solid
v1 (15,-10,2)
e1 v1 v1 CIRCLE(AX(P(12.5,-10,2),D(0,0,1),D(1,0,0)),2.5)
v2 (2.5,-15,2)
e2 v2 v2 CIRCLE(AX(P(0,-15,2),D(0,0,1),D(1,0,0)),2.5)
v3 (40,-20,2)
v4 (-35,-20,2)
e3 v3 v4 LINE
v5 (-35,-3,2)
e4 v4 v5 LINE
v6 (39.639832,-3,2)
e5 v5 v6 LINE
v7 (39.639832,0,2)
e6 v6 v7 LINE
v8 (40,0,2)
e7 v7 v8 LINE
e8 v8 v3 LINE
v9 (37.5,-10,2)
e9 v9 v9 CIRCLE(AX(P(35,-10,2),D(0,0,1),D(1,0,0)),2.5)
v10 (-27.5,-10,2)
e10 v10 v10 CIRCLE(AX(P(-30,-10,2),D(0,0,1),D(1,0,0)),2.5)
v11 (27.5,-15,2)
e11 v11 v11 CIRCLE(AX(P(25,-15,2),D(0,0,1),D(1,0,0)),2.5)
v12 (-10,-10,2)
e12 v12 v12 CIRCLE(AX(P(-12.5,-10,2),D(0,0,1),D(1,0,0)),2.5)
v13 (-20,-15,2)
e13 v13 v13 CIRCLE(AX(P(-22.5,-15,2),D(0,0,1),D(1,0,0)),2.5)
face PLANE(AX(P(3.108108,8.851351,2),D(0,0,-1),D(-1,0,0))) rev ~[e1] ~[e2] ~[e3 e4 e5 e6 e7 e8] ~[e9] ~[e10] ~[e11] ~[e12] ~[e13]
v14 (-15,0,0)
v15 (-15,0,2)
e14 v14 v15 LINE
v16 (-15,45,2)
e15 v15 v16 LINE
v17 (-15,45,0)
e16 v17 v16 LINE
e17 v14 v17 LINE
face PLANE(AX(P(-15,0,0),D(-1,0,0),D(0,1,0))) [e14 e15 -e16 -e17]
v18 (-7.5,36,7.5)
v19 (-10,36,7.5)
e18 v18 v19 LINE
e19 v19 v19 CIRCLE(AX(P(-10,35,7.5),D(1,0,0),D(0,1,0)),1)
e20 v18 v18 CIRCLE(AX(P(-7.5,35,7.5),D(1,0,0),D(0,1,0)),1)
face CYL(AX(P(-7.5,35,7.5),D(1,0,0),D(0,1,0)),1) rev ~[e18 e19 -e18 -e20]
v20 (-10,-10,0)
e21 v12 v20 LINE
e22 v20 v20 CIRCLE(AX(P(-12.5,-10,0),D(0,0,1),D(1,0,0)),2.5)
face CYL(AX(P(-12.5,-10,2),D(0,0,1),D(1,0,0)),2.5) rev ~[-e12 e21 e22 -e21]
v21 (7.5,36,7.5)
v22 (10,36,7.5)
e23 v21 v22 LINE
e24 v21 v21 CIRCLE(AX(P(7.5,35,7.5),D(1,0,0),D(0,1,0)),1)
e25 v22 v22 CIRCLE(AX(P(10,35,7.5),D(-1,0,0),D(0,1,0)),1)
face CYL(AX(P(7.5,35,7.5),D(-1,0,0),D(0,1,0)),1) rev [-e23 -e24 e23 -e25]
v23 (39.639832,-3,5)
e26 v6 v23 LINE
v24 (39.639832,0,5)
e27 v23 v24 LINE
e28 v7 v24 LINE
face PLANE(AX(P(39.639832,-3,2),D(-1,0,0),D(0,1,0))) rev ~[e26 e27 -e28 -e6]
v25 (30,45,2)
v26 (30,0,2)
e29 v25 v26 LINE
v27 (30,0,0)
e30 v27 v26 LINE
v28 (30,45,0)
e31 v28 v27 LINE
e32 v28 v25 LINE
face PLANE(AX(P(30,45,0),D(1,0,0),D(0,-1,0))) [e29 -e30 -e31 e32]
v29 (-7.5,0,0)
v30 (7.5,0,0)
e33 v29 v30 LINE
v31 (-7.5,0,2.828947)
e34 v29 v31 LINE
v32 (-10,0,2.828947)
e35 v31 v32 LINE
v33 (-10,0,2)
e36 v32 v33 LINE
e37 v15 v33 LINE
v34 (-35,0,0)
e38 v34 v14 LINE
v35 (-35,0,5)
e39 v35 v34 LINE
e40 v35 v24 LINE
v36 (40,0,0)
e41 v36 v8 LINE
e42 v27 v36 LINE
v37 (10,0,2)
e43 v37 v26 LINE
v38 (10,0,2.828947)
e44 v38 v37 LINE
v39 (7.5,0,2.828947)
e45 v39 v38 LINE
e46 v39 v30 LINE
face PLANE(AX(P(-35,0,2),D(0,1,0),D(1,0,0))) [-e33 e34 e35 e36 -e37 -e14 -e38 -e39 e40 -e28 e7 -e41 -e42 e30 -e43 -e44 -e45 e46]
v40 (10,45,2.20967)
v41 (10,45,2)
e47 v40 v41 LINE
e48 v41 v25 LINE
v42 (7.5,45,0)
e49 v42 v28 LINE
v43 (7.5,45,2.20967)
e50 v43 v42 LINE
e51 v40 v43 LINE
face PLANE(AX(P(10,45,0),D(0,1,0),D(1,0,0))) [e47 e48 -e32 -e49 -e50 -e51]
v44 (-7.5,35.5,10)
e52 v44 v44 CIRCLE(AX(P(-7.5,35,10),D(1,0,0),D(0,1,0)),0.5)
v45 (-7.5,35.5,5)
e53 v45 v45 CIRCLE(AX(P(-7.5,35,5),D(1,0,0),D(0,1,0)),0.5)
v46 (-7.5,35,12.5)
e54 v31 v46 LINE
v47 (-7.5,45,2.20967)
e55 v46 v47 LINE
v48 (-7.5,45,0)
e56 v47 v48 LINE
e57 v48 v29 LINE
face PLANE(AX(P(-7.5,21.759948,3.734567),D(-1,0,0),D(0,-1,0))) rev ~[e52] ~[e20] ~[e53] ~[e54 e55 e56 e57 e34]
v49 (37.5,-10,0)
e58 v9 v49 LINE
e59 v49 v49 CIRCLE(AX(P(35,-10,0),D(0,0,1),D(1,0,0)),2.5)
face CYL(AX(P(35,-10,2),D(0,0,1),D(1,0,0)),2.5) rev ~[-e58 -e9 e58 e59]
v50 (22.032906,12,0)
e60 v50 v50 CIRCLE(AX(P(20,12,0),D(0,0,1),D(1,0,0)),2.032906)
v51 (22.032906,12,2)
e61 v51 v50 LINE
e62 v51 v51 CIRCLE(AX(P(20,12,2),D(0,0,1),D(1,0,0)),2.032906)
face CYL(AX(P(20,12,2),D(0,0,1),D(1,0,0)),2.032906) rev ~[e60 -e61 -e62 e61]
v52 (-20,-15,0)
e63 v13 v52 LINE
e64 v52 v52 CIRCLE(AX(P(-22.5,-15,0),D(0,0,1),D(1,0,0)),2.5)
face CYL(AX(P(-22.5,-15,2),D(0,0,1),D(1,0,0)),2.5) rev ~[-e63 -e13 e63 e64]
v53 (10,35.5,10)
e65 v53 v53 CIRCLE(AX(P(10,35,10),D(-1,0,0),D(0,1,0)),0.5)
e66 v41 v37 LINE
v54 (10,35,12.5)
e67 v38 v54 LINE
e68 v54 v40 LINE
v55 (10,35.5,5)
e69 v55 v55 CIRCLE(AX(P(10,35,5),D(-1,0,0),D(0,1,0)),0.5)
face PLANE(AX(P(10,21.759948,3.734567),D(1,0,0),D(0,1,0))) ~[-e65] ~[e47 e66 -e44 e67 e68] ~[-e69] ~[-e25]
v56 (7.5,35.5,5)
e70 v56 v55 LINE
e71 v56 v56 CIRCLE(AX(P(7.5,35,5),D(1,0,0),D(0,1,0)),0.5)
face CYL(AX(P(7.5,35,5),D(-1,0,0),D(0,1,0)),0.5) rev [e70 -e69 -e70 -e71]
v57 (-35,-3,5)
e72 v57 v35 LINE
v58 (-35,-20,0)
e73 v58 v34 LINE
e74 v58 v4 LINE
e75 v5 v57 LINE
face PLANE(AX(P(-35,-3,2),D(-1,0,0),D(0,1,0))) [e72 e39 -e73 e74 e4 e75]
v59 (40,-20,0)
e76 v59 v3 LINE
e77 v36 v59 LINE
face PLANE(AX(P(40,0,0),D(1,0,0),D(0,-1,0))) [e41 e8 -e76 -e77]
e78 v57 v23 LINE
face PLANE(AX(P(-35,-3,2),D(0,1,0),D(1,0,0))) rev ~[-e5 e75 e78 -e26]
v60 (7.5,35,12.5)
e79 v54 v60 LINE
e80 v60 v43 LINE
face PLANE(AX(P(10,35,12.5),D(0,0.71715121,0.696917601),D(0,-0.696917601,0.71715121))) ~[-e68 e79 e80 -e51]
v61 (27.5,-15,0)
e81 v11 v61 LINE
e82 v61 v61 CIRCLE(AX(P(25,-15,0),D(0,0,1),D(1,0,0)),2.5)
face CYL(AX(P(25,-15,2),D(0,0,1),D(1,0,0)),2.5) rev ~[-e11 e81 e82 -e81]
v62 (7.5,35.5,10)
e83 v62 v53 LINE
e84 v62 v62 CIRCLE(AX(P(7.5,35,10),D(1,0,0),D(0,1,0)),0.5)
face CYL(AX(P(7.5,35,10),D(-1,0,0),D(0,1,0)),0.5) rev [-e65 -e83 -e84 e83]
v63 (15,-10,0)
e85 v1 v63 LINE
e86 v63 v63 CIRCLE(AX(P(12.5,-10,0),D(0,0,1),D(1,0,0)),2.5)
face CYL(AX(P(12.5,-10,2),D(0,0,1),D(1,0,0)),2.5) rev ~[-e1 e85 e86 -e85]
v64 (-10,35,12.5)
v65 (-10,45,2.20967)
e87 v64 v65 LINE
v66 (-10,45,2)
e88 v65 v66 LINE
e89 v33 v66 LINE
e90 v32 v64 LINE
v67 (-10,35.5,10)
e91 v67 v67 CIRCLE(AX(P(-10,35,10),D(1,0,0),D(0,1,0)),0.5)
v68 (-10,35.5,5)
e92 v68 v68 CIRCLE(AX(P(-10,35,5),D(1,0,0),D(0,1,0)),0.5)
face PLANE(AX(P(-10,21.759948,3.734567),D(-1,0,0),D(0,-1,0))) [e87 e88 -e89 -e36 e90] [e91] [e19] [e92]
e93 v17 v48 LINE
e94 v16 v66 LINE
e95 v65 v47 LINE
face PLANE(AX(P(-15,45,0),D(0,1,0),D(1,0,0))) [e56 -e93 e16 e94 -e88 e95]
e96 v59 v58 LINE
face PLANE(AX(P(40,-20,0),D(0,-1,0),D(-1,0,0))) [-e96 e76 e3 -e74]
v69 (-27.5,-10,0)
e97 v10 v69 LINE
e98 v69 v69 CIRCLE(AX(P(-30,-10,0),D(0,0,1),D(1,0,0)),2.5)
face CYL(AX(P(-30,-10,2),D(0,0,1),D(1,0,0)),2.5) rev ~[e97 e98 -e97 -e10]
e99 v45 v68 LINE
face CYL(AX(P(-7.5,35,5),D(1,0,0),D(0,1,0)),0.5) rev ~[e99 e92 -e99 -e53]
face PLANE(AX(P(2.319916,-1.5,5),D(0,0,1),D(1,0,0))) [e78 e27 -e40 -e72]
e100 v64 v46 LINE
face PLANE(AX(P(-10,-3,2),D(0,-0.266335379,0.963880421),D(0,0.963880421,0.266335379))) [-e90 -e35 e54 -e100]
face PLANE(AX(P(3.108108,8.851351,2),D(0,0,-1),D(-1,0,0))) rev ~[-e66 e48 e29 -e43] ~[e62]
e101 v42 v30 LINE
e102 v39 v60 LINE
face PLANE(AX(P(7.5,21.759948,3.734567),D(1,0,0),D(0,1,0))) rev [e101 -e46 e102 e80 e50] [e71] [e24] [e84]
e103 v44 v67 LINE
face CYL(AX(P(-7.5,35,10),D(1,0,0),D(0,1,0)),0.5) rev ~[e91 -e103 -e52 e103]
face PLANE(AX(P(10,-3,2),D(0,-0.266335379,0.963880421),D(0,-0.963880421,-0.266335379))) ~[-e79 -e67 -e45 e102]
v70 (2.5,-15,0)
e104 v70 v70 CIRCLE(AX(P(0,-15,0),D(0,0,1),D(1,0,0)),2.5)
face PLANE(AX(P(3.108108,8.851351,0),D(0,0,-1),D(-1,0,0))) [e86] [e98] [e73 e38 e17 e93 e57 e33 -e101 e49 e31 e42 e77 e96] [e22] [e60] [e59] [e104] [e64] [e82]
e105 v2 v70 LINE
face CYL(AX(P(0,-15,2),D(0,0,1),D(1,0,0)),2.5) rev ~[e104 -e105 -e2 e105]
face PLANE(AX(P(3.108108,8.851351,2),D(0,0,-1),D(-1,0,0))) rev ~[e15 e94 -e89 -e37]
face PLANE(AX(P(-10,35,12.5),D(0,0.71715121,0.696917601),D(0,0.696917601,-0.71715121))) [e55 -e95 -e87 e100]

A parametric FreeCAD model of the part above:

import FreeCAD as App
import Part
import Sketcher

V = App.Vector
Q = App.Units.Quantity


def add_polygon(sketch, points):
    """Adds a closed chain of lines whose ends are joined by coincident constraints."""
    first, n = sketch.GeometryCount, len(points)
    for a, b in zip(points, points[1:] + points[:1]):
        sketch.addGeometry(Part.LineSegment(App.Vector(*a, 0), App.Vector(*b, 0)), False)
    for i in range(n):
        sketch.addConstraint(Sketcher.Constraint("Coincident", first + i, 2, first + (i + 1) % n, 1))

doc = App.newDocument("Part")
body = doc.addObject("PartDesign::Body", "Body")

# Sketch on XY plane
sketch1 = doc.addObject("Sketcher::SketchObject", "Sketch")
body.addObject(sketch1)
sketch1.AttachmentSupport = (doc.XY_Plane, [""])
sketch1.MapMode = "FlatFace"
add_polygon(sketch1, [(-15, 0), (-35, 0), (-35, -20), (40, -20), (40, 0), (30, 0), (30, 45), (10, 45), (10, 0), (-10, 0), (-10, 45), (-15, 45)])  # lines 0-11
sketch1.addConstraint([
    Sketcher.Constraint("Horizontal", 0),
    Sketcher.Constraint("Vertical", 1),
    Sketcher.Constraint("Horizontal", 2),
    Sketcher.Constraint("Vertical", 3),
    Sketcher.Constraint("Horizontal", 4),
    Sketcher.Constraint("Vertical", 5),
    Sketcher.Constraint("Horizontal", 6),
    Sketcher.Constraint("Vertical", 7),
    Sketcher.Constraint("Horizontal", 8),
    Sketcher.Constraint("Vertical", 9),
    Sketcher.Constraint("Horizontal", 10),
    Sketcher.Constraint("Vertical", 11),
    Sketcher.Constraint("Symmetric", 7, 2, 8, 2, -1, 1),
    Sketcher.Constraint("PointOnObject", 0, 2, -1),
    Sketcher.Constraint("PointOnObject", 3, 2, -1),
    Sketcher.Constraint("Horizontal", 6, 2, 9, 2),
    Sketcher.Constraint("Equal", 0, 6),
    Sketcher.Constraint("Equal", 6, 8),
    Sketcher.Constraint("Equal", 8, 1),
    Sketcher.Constraint("DistanceX", 0, 2, 0, 1, Q("20 mm")),
    Sketcher.Constraint("DistanceX", 2, 1, 2, 2, Q("75 mm")),
    Sketcher.Constraint("DistanceX", 4, 2, 4, 1, Q("10 mm")),
    Sketcher.Constraint("DistanceY", 5, 1, 5, 2, Q("45 mm")),
])
pad1 = doc.addObject("PartDesign::Pad", "Pad")
body.addObject(pad1)
pad1.Profile = sketch1
pad1.Length = 2

# Sketch on YZ plane
sketch2 = doc.addObject("Sketcher::SketchObject", "Sketch001")
body.addObject(sketch2)
sketch2.AttachmentSupport = (doc.YZ_Plane, [""])
sketch2.MapMode = "FlatFace"
sketch2.AttachmentOffset = App.Placement(V(0, 0, -10), App.Rotation())
add_polygon(sketch2, [(-3, 2), (-3, 0), (45, 0), (45, 2.2), (35, 12.5)])  # lines 0-4
sketch2.addConstraint([
    Sketcher.Constraint("Vertical", 0),
    Sketcher.Constraint("Horizontal", 1),
    Sketcher.Constraint("Vertical", 2),
    Sketcher.Constraint("PointOnObject", 0, 2, -1),
    Sketcher.Constraint("DistanceX", 1, 1, 1, 2, Q("48 mm")),
    Sketcher.Constraint("DistanceY", 0, 2, 0, 1, Q("2 mm")),
    Sketcher.Constraint("DistanceX", 0, 2, -1, 1, Q("3 mm")),
    Sketcher.Constraint("DistanceX", -1, 1, 3, 2, Q("35 mm")),
    Sketcher.Constraint("DistanceY", -1, 1, 3, 2, Q("12.5 mm")),
    Sketcher.Constraint("Distance", 3, Q("14.348899 mm")),
])
pad2 = doc.addObject("PartDesign::Pad", "Pad001")
body.addObject(pad2)
pad2.Profile = sketch2
pad2.Length = 2.5

# Sketch on YZ plane
sketch3 = doc.addObject("Sketcher::SketchObject", "Sketch002")
body.addObject(sketch3)
sketch3.AttachmentSupport = (doc.YZ_Plane, [""])
sketch3.MapMode = "FlatFace"
sketch3.AttachmentOffset = App.Placement(V(0, 0, -7.5), App.Rotation())
sketch3.addGeometry([
    Part.Circle(V(35, 7.5, 0), V(0, 0, 1), 1),
    Part.Circle(V(35, 10, 0), V(0, 0, 1), 0.5),
    Part.Circle(V(35, 5, 0), V(0, 0, 1), 0.5),
], False)
sketch3.addConstraint([
    Sketcher.Constraint("Equal", 1, 2),
    Sketcher.Constraint("Vertical", 0, 3, 1, 3),
    Sketcher.Constraint("Vertical", 1, 3, 2, 3),
    Sketcher.Constraint("Diameter", 0, Q("2 mm")),
    Sketcher.Constraint("Diameter", 1, Q("1 mm")),
    Sketcher.Constraint("DistanceX", -1, 1, 0, 3, Q("35 mm")),
    Sketcher.Constraint("DistanceY", -1, 1, 1, 3, Q("10 mm")),
    Sketcher.Constraint("DistanceY", -1, 1, 2, 3, Q("5 mm")),
    Sketcher.Constraint("DistanceY", -1, 1, 0, 3, Q("7.5 mm")),
])
pocket1 = doc.addObject("PartDesign::Pocket", "Pocket")
body.addObject(pocket1)
pocket1.Profile = sketch3
pocket1.Length = 5
doc.recompute()

mirrored = doc.addObject("PartDesign::Mirrored", "Mirrored")
body.addObject(mirrored)
mirrored.Originals = [pad2, pocket1]
mirrored.MirrorPlane = (doc.YZ_Plane, [""])
body.Tip = mirrored

# Sketch on XY plane
sketch4 = doc.addObject("Sketcher::SketchObject", "Sketch003")
body.addObject(sketch4)
sketch4.AttachmentSupport = (doc.XY_Plane, [""])
sketch4.MapMode = "FlatFace"
sketch4.AttachmentOffset = App.Placement(V(0, 0, 2), App.Rotation())
sketch4.addGeometry([
    Part.Circle(V(-30, -10, 0), V(0, 0, 1), 2.5),  # 0
    Part.Circle(V(-22.5, -15, 0), V(0, 0, 1), 2.5),  # 1
    Part.Circle(V(-12.5, -10, 0), V(0, 0, 1), 2.5),  # 2
    Part.Circle(V(35, -10, 0), V(0, 0, 1), 2.5),  # 3
    Part.Circle(V(25, -15, 0), V(0, 0, 1), 2.5),  # 4
    Part.Circle(V(12.5, -10, 0), V(0, 0, 1), 2.5),  # 5
    Part.Circle(V(0, -15, 0), V(0, 0, 1), 2.5),  # 6
], False)
sketch4.addConstraint([
    Sketcher.Constraint("Equal", 0, 1),
    Sketcher.Constraint("Equal", 1, 2),
    Sketcher.Constraint("Equal", 2, 3),
    Sketcher.Constraint("Equal", 3, 4),
    Sketcher.Constraint("Equal", 4, 5),
    Sketcher.Constraint("Equal", 5, 6),
    Sketcher.Constraint("Symmetric", 2, 3, 5, 3, -2),
    Sketcher.Constraint("PointOnObject", 6, 3, -2),
    Sketcher.Constraint("Horizontal", 0, 3, 2, 3),
    Sketcher.Constraint("Horizontal", 2, 3, 3, 3),
    Sketcher.Constraint("Horizontal", 1, 3, 4, 3),
    Sketcher.Constraint("Horizontal", 4, 3, 6, 3),
    Sketcher.Constraint("Diameter", 0, Q("5 mm")),
    Sketcher.Constraint("DistanceX", 0, 3, -1, 1, Q("30 mm")),
    Sketcher.Constraint("DistanceY", 0, 3, -1, 1, Q("10 mm")),
    Sketcher.Constraint("DistanceY", 1, 3, -1, 1, Q("15 mm")),
    Sketcher.Constraint("DistanceX", -1, 1, 3, 3, Q("35 mm")),
    Sketcher.Constraint("DistanceX", -1, 1, 4, 3, Q("25 mm")),
    Sketcher.Constraint("DistanceX", 1, 3, 2, 3, Q("10 mm")),
    Sketcher.Constraint("DistanceX", 2, 3, 5, 3, Q("25 mm")),
])
pocket2 = doc.addObject("PartDesign::Pocket", "Pocket001")
body.addObject(pocket2)
pocket2.Profile = sketch4
pocket2.Length = 2

# Sketch on XY plane
sketch5 = doc.addObject("Sketcher::SketchObject", "Sketch004")
body.addObject(sketch5)
sketch5.AttachmentSupport = (doc.XY_Plane, [""])
sketch5.MapMode = "FlatFace"
sketch5.AttachmentOffset = App.Placement(V(0, 0, 2), App.Rotation())
add_polygon(sketch5, [(-35, 0), (-35, -3), (39.6, -3), (39.6, 0)])  # lines 0-3
sketch5.addConstraint([
    Sketcher.Constraint("Vertical", 0),
    Sketcher.Constraint("Horizontal", 1),
    Sketcher.Constraint("Vertical", 2),
    Sketcher.Constraint("Horizontal", 3),
    Sketcher.Constraint("PointOnObject", 2, 2, -1),
    Sketcher.Constraint("DistanceY", 0, 2, 0, 1, Q("3 mm")),
    Sketcher.Constraint("DistanceX", 0, 2, -1, 1, Q("35 mm")),
    Sketcher.Constraint("DistanceX", 1, 1, 1, 2, Q("74.639832 mm")),
])
pad3 = doc.addObject("PartDesign::Pad", "Pad002")
body.addObject(pad3)
pad3.Profile = sketch5
pad3.Length = 3

# Sketch on XY plane
sketch6 = doc.addObject("Sketcher::SketchObject", "Sketch005")
body.addObject(sketch6)
sketch6.AttachmentSupport = (doc.XY_Plane, [""])
sketch6.MapMode = "FlatFace"
sketch6.AttachmentOffset = App.Placement(V(0, 0, 2), App.Rotation())
sketch6.addGeometry(Part.Circle(V(20, 12, 0), V(0, 0, 1), 2), False)
sketch6.addConstraint([
    Sketcher.Constraint("DistanceX", -1, 1, 0, 3, Q("20 mm")),
    Sketcher.Constraint("DistanceY", -1, 1, 0, 3, Q("12 mm")),
    Sketcher.Constraint("Diameter", 0, Q("4.065812 mm")),
])
pocket3 = doc.addObject("PartDesign::Pocket", "Pocket002")
body.addObject(pocket3)
pocket3.Profile = sketch6
pocket3.Length = 2

doc.recompute()
